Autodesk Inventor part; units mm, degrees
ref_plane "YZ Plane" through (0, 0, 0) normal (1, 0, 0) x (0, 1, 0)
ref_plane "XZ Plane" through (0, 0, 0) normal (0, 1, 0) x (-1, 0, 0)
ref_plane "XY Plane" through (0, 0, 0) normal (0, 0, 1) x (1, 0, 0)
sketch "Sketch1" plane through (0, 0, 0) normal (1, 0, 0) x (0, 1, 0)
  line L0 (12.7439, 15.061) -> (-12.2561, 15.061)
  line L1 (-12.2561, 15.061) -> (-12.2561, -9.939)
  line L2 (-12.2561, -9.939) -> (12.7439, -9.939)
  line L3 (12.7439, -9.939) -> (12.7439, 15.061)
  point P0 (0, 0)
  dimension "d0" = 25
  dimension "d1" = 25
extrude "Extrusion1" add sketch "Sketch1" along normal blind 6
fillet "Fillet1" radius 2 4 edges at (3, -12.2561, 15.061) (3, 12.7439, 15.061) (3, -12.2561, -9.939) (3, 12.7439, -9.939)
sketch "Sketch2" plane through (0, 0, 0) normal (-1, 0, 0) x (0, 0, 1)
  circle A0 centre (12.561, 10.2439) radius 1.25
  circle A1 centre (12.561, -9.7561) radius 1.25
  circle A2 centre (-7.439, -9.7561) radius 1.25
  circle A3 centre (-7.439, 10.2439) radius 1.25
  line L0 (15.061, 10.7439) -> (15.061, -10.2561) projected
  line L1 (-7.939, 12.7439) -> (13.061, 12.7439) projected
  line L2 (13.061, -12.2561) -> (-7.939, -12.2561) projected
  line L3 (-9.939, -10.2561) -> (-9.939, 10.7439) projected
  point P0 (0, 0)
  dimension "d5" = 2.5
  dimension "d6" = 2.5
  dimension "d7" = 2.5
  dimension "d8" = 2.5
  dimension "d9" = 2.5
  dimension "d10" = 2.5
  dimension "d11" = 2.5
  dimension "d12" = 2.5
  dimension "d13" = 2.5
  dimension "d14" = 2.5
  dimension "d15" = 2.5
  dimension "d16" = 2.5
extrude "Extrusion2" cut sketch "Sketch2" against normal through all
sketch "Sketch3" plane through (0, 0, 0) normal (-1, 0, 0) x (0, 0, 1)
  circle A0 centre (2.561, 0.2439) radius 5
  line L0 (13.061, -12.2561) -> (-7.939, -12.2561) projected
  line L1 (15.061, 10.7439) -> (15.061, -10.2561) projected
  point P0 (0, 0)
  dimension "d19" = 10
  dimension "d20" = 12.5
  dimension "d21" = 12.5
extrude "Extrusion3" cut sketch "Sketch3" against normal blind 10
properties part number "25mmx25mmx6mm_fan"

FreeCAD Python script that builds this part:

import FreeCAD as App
import Part
import Sketcher
from FreeCAD import Vector


def edges_at(feature, points):
    """Names of the edges that pass closest to the given points."""
    edges = feature.Shape.Edges
    near = lambda p: min(range(len(edges)), key=lambda i: edges[i].distToShape(Part.Vertex(*p))[0])
    return sorted({f"Edge{near(p) + 1}" for p in points})

doc = App.newDocument("Part")
params = doc.addObject("Spreadsheet::Sheet", "Params")
for row, (alias, value) in enumerate([
    ("sketch1_width", "25 mm"),
    ("pad1_length", "6 mm"),
    ("fillet_radius", "2 mm"),
    ("sketch2_diameter", "2.5 mm"),
    ("sketch3_diameter", "10 mm"),
    ("pocket2_length", "10 mm"),
], start=1):
    params.set(f"A{row}", alias)
    params.set(f"B{row}", "=" + value)
    params.setAlias(f"B{row}", alias)

body = doc.addObject("PartDesign::Body", "Body")

# Sketch on YZ plane
sketch1 = doc.addObject("Sketcher::SketchObject", "Sketch")
body.addObject(sketch1)
sketch1.AttachmentSupport = (doc.YZ_Plane, [""])
sketch1.MapMode = "FlatFace"
sketch1.addGeometry([
    Part.LineSegment(Vector(13, -10, 0), Vector(13, 15, 0)),
    Part.LineSegment(Vector(13, 15, 0), Vector(-12, 15, 0)),
    Part.LineSegment(Vector(-12, 15, 0), Vector(-12, -10, 0)),
    Part.LineSegment(Vector(-12, -10, 0), Vector(13, -10, 0)),
], False)
sketch1.addConstraint([
    Sketcher.Constraint("Coincident", 0, 2, 1, 1),
    Sketcher.Constraint("Coincident", 1, 2, 2, 1),
    Sketcher.Constraint("Coincident", 2, 2, 3, 1),
    Sketcher.Constraint("Coincident", 3, 2, 0, 1),
    Sketcher.Constraint("Vertical", 0),
    Sketcher.Constraint("Horizontal", 1),
    Sketcher.Constraint("Vertical", 2),
    Sketcher.Constraint("Horizontal", 3),
    Sketcher.Constraint("Equal", 3, 0),
    Sketcher.Constraint("DistanceX", 1, 2, 1, 1, 25.0),
    Sketcher.Constraint("DistanceX", -1, 1, 0, 2, 12.744),
    Sketcher.Constraint("DistanceY", -1, 1, 0, 2, 15.061),
])
sketch1.setExpression("Constraints[9]", "Params.sketch1_width")
pad1 = doc.addObject("PartDesign::Pad", "Pad")
body.addObject(pad1)
pad1.Profile = sketch1
pad1.setExpression("Length", "Params.pad1_length")
doc.recompute()

fillet = doc.addObject("PartDesign::Fillet", "Fillet")
body.addObject(fillet)
fillet.Base = (pad1, edges_at(pad1, [
    (3, -12.256, 15.061),
    (3, 12.744, 15.061),
    (3, -12.256, -9.939),
    (3, 12.744, -9.939),
]))
fillet.setExpression("Radius", "Params.fillet_radius")

# Sketch on YZ plane
sketch2 = doc.addObject("Sketcher::SketchObject", "Sketch001")
body.addObject(sketch2)
sketch2.AttachmentSupport = (doc.YZ_Plane, [""])
sketch2.MapMode = "FlatFace"
sketch2.addGeometry([
    Part.Circle(Vector(10.2, 12.6, 0), Vector(0, 0, 1), 1.2),
    Part.Circle(Vector(-9.8, 12.6, 0), Vector(0, 0, 1), 1.2),
    Part.Circle(Vector(-9.8, -7.4, 0), Vector(0, 0, 1), 1.2),
    Part.Circle(Vector(10.2, -7.4, 0), Vector(0, 0, 1), 1.2),
], False)
sketch2.addConstraint([
    Sketcher.Constraint("Equal", 0, 1),
    Sketcher.Constraint("Equal", 1, 2),
    Sketcher.Constraint("Equal", 2, 3),
    Sketcher.Constraint("Horizontal", 0, 3, 1, 3),
    Sketcher.Constraint("Horizontal", 2, 3, 3, 3),
    Sketcher.Constraint("Vertical", 1, 3, 2, 3),
    Sketcher.Constraint("Vertical", 0, 3, 3, 3),
    Sketcher.Constraint("Diameter", 0, 2.5),
    Sketcher.Constraint("DistanceX", 1, 3, 0, 3, 20.0),
    Sketcher.Constraint("DistanceY", 2, 3, 1, 3, 20.0),
    Sketcher.Constraint("DistanceX", -1, 1, 0, 3, 10.244),
    Sketcher.Constraint("DistanceY", -1, 1, 0, 3, 12.561),
])
sketch2.setExpression("Constraints[7]", "Params.sketch2_diameter")
pocket1 = doc.addObject("PartDesign::Pocket", "Pocket")
body.addObject(pocket1)
pocket1.Profile = sketch2
pocket1.Type = "ThroughAll"
pocket1.Reversed = True

# Sketch on YZ plane
sketch3 = doc.addObject("Sketcher::SketchObject", "Sketch002")
body.addObject(sketch3)
sketch3.AttachmentSupport = (doc.YZ_Plane, [""])
sketch3.MapMode = "FlatFace"
sketch3.addGeometry(Part.Circle(Vector(0, 3, 0), Vector(0, 0, 1), 5), False)
sketch3.addConstraint([
    Sketcher.Constraint("Diameter", 0, 10.0),
    Sketcher.Constraint("DistanceX", -1, 1, 0, 3, 0.244),
    Sketcher.Constraint("DistanceY", -1, 1, 0, 3, 2.561),
])
sketch3.setExpression("Constraints[0]", "Params.sketch3_diameter")
pocket2 = doc.addObject("PartDesign::Pocket", "Pocket001")
body.addObject(pocket2)
pocket2.Profile = sketch3
pocket2.setExpression("Length", "Params.pocket2_length")
pocket2.Reversed = True

doc.recompute()
